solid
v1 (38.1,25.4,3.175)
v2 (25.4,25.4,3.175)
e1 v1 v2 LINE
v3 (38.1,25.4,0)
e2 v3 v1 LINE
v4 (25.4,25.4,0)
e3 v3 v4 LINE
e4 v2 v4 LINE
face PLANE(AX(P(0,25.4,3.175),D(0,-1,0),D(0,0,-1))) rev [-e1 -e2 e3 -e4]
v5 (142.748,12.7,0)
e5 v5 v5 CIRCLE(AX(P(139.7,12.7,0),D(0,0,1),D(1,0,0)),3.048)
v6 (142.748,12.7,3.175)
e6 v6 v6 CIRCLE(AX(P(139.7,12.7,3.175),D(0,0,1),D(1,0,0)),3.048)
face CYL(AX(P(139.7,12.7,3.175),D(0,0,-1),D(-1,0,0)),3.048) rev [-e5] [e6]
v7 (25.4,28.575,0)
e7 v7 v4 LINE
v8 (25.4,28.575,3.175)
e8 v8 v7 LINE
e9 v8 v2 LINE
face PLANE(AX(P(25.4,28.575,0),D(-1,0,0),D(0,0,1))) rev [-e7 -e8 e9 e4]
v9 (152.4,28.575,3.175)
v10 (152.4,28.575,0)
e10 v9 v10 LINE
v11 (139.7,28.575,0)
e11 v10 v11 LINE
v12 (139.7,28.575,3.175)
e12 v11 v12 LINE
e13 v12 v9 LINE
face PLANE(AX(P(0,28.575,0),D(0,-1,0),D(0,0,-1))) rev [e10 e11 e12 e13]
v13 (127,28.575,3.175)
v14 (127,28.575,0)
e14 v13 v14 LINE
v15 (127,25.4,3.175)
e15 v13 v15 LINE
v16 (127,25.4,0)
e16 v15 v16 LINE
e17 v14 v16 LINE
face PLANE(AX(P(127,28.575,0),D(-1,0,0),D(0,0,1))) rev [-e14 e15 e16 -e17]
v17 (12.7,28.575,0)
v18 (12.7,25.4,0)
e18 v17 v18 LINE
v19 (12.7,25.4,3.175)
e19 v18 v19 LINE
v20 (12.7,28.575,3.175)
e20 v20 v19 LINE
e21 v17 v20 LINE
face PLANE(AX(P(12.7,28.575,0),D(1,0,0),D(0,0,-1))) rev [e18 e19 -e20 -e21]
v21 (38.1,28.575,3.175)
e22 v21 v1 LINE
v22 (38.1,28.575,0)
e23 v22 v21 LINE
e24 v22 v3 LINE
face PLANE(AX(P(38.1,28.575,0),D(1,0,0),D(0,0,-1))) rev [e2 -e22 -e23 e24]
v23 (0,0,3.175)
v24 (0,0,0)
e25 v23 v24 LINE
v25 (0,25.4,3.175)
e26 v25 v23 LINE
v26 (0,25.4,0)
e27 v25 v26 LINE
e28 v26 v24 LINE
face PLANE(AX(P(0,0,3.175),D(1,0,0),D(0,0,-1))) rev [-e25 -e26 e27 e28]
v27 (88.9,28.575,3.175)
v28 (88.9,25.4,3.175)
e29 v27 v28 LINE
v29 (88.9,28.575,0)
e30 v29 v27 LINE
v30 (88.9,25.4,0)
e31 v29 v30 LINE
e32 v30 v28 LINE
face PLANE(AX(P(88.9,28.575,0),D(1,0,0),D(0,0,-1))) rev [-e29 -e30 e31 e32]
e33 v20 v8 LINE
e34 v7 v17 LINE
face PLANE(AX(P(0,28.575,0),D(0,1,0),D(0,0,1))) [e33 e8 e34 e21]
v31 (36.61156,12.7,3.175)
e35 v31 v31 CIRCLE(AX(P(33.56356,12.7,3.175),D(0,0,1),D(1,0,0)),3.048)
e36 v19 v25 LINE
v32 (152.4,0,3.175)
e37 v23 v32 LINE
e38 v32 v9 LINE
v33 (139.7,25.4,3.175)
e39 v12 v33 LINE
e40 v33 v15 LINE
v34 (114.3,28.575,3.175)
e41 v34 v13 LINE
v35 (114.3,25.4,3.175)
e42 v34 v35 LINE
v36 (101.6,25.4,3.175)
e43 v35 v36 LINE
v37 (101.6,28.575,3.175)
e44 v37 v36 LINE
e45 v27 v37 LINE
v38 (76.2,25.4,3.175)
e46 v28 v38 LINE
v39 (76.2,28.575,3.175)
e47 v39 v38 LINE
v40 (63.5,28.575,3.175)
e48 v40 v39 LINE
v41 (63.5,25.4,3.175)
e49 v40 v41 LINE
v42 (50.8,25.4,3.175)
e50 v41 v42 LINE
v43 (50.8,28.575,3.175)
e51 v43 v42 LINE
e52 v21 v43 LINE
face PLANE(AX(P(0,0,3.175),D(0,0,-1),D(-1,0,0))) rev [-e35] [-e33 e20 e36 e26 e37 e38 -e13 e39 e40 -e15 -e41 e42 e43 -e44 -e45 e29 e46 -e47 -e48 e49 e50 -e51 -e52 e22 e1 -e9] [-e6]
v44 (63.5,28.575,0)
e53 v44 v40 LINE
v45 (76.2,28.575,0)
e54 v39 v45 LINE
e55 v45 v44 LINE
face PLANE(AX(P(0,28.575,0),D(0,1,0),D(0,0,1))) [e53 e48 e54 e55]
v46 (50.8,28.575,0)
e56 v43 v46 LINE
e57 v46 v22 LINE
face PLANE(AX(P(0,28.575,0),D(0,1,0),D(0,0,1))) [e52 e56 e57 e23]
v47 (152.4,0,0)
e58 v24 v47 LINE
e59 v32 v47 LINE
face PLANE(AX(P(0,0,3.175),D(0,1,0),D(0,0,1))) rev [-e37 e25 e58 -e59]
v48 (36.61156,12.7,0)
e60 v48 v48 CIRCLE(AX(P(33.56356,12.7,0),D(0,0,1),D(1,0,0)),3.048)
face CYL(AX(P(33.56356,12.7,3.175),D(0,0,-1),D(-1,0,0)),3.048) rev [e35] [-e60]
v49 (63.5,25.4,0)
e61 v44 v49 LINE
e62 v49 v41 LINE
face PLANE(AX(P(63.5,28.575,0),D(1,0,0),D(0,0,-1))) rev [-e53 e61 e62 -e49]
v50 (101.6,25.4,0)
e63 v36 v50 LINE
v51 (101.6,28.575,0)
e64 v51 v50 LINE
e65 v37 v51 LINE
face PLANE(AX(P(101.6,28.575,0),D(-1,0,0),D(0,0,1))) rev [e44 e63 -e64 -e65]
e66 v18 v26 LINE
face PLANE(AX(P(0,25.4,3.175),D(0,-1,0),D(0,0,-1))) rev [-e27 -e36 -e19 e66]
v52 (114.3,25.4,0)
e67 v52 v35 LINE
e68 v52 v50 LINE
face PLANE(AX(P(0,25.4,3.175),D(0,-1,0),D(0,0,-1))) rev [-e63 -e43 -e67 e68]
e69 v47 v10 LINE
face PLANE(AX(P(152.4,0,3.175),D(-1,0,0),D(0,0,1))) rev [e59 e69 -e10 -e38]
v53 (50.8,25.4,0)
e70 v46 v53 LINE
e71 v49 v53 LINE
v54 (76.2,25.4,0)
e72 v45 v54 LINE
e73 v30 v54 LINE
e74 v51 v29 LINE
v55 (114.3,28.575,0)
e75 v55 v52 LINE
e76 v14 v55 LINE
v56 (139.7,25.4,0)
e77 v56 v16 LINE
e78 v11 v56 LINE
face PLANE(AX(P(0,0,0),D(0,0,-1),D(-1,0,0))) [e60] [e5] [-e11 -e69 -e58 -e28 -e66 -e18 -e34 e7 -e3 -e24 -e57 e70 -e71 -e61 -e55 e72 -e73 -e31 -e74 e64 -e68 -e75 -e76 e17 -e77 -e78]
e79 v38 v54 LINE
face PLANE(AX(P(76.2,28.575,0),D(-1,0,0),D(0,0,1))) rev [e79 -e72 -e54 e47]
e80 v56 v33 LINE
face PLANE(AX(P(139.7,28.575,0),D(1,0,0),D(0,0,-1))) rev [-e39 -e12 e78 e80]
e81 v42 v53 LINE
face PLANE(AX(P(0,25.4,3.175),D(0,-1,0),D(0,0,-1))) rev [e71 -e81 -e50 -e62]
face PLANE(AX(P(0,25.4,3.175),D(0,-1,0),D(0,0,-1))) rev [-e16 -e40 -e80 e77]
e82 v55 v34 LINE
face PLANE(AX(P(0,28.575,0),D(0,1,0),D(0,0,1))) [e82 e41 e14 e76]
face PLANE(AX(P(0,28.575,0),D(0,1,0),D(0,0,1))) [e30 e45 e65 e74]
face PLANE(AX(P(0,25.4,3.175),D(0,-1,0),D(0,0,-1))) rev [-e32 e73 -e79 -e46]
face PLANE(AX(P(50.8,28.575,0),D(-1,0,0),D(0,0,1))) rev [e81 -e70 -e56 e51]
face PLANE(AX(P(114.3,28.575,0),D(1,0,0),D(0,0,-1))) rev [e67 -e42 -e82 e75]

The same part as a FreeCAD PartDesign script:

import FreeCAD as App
import Part
import Sketcher

V = App.Vector
Q = App.Units.Quantity

doc = App.newDocument("Part")
body = doc.addObject("PartDesign::Body", "Body")

sketch1 = body.newObject("Sketcher::SketchObject", "Sketch")
sketch1.AttachmentSupport = (doc.getObject("XY_Plane"), [""])
sketch1.MapMode = "FlatFace"
sketch1.addGeometry([
    Part.LineSegment(V(0, 25.4, 0), V(0, 0, 0)),
    Part.LineSegment(V(0, 0, 0), V(152.4, 0, 0)),
    Part.LineSegment(V(152.4, 0, 0), V(152.4, 25.4, 0)),
    Part.LineSegment(V(152.4, 25.4, 0), V(0, 25.4, 0)),
    Part.Circle(V(33.6, 12.7, 0), V(0, 0, 1), 3),
    Part.Circle(V(139.7, 12.7, 0), V(0, 0, 1), 3),
], False)
sketch1.addConstraint([
    Sketcher.Constraint("Coincident", 0, 2, 1, 1),
    Sketcher.Constraint("Coincident", 1, 2, 2, 1),
    Sketcher.Constraint("Coincident", 2, 2, 3, 1),
    Sketcher.Constraint("Coincident", 3, 2, 0, 1),
    Sketcher.Constraint("Vertical", 0),
    Sketcher.Constraint("Horizontal", 1),
    Sketcher.Constraint("Vertical", 2),
    Sketcher.Constraint("Horizontal", 3),
    Sketcher.Constraint("Coincident", 0, 2, -1, 1),
    Sketcher.Constraint("Equal", 4, 5),
    Sketcher.Constraint("Horizontal", 4, 3, 5, 3),
    Sketcher.Constraint("Diameter", 4, Q("0.24 in")),
    Sketcher.Constraint("DistanceX", 1, 1, 1, 2, Q("6 in")),
    Sketcher.Constraint("DistanceY", 0, 2, 0, 1, Q("1 in")),
    Sketcher.Constraint("DistanceY", -1, 1, 4, 3, Q("0.5 in")),
    Sketcher.Constraint("DistanceX", -1, 1, 5, 3, Q("5.5 in")),
    Sketcher.Constraint("DistanceX", -1, 1, 4, 3, Q("1.3214 in")),
])
pad1 = body.newObject("PartDesign::Pad", "Pad")
pad1.Profile = sketch1
pad1.Length = Q("0.125 in")

sketch2 = body.newObject("Sketcher::SketchObject", "Sketch001")
sketch2.AttachmentSupport = (doc.getObject("XZ_Plane"), [""])
sketch2.MapMode = "FlatFace"
sketch2.AttachmentOffset = App.Placement(V(0, 0, -1 * 25.4), App.Rotation())
sketch2.addGeometry([
    Part.LineSegment(V(139.7, 0, 0), V(139.7, 3.2, 0)),
    Part.LineSegment(V(139.7, 3.2, 0), V(152.4, 3.2, 0)),
    Part.LineSegment(V(152.4, 3.2, 0), V(152.4, 0, 0)),
    Part.LineSegment(V(152.4, 0, 0), V(139.7, 0, 0)),
    Part.LineSegment(V(114.3, 0, 0), V(114.3, 3.2, 0)),
    Part.LineSegment(V(114.3, 3.2, 0), V(127, 3.2, 0)),
    Part.LineSegment(V(127, 3.2, 0), V(127, 0, 0)),
    Part.LineSegment(V(127, 0, 0), V(114.3, 0, 0)),
    Part.LineSegment(V(88.9, 0, 0), V(88.9, 3.2, 0)),
    Part.LineSegment(V(88.9, 3.2, 0), V(101.6, 3.2, 0)),
    Part.LineSegment(V(101.6, 3.2, 0), V(101.6, 0, 0)),
    Part.LineSegment(V(101.6, 0, 0), V(88.9, 0, 0)),
    Part.LineSegment(V(63.5, 0, 0), V(63.5, 3.2, 0)),
    Part.LineSegment(V(63.5, 3.2, 0), V(76.2, 3.2, 0)),
    Part.LineSegment(V(76.2, 3.2, 0), V(76.2, 0, 0)),
    Part.LineSegment(V(76.2, 0, 0), V(63.5, 0, 0)),
    Part.LineSegment(V(38.1, 0, 0), V(38.1, 3.2, 0)),
    Part.LineSegment(V(38.1, 3.2, 0), V(50.8, 3.2, 0)),
    Part.LineSegment(V(50.8, 3.2, 0), V(50.8, 0, 0)),
    Part.LineSegment(V(50.8, 0, 0), V(38.1, 0, 0)),
    Part.LineSegment(V(12.7, 0, 0), V(12.7, 3.2, 0)),
    Part.LineSegment(V(12.7, 3.2, 0), V(25.4, 3.2, 0)),
    Part.LineSegment(V(25.4, 3.2, 0), V(25.4, 0, 0)),
    Part.LineSegment(V(25.4, 0, 0), V(12.7, 0, 0)),
], False)
sketch2.addConstraint([
    Sketcher.Constraint("Coincident", 0, 2, 1, 1),
    Sketcher.Constraint("Coincident", 1, 2, 2, 1),
    Sketcher.Constraint("Coincident", 2, 2, 3, 1),
    Sketcher.Constraint("Coincident", 3, 2, 0, 1),
    Sketcher.Constraint("Coincident", 4, 2, 5, 1),
    Sketcher.Constraint("Coincident", 5, 2, 6, 1),
    Sketcher.Constraint("Coincident", 6, 2, 7, 1),
    Sketcher.Constraint("Coincident", 7, 2, 4, 1),
    Sketcher.Constraint("Coincident", 8, 2, 9, 1),
    Sketcher.Constraint("Coincident", 9, 2, 10, 1),
    Sketcher.Constraint("Coincident", 10, 2, 11, 1),
    Sketcher.Constraint("Coincident", 11, 2, 8, 1),
    Sketcher.Constraint("Coincident", 12, 2, 13, 1),
    Sketcher.Constraint("Coincident", 13, 2, 14, 1),
    Sketcher.Constraint("Coincident", 14, 2, 15, 1),
    Sketcher.Constraint("Coincident", 15, 2, 12, 1),
    Sketcher.Constraint("Coincident", 16, 2, 17, 1),
    Sketcher.Constraint("Coincident", 17, 2, 18, 1),
    Sketcher.Constraint("Coincident", 18, 2, 19, 1),
    Sketcher.Constraint("Coincident", 19, 2, 16, 1),
    Sketcher.Constraint("Coincident", 20, 2, 21, 1),
    Sketcher.Constraint("Coincident", 21, 2, 22, 1),
    Sketcher.Constraint("Coincident", 22, 2, 23, 1),
    Sketcher.Constraint("Coincident", 23, 2, 20, 1),
    Sketcher.Constraint("Vertical", 0),
    Sketcher.Constraint("Horizontal", 1),
    Sketcher.Constraint("Vertical", 2),
    Sketcher.Constraint("Horizontal", 3),
    Sketcher.Constraint("Vertical", 4),
    Sketcher.Constraint("Horizontal", 5),
    Sketcher.Constraint("Vertical", 6),
    Sketcher.Constraint("Horizontal", 7),
    Sketcher.Constraint("Vertical", 8),
    Sketcher.Constraint("Horizontal", 9),
    Sketcher.Constraint("Vertical", 10),
    Sketcher.Constraint("Horizontal", 11),
    Sketcher.Constraint("Vertical", 12),
    Sketcher.Constraint("Horizontal", 13),
    Sketcher.Constraint("Vertical", 14),
    Sketcher.Constraint("Horizontal", 15),
    Sketcher.Constraint("Vertical", 16),
    Sketcher.Constraint("Horizontal", 17),
    Sketcher.Constraint("Vertical", 18),
    Sketcher.Constraint("Horizontal", 19),
    Sketcher.Constraint("Vertical", 20),
    Sketcher.Constraint("Horizontal", 21),
    Sketcher.Constraint("Vertical", 22),
    Sketcher.Constraint("Horizontal", 23),
    Sketcher.Constraint("PointOnObject", 2, 2, -1),
    Sketcher.Constraint("PointOnObject", 6, 2, -1),
    Sketcher.Constraint("PointOnObject", 10, 2, -1),
    Sketcher.Constraint("PointOnObject", 14, 2, -1),
    Sketcher.Constraint("PointOnObject", 18, 2, -1),
    Sketcher.Constraint("PointOnObject", 22, 2, -1),
    Sketcher.Constraint("Horizontal", 1, 2, 4, 2),
    Sketcher.Constraint("Horizontal", 5, 2, 8, 2),
    Sketcher.Constraint("Horizontal", 9, 2, 12, 2),
    Sketcher.Constraint("Horizontal", 13, 2, 16, 2),
    Sketcher.Constraint("Horizontal", 17, 2, 20, 2),
    Sketcher.Constraint("Equal", 3, 5),
    Sketcher.Constraint("Equal", 7, 9),
    Sketcher.Constraint("Equal", 11, 13),
    Sketcher.Constraint("Equal", 15, 17),
    Sketcher.Constraint("Equal", 19, 21),
    Sketcher.Constraint("DistanceX", 1, 1, 1, 2, Q("0.5 in")),
    Sketcher.Constraint("DistanceX", -1, 1, 1, 2, Q("6 in")),
    Sketcher.Constraint("DistanceX", -1, 1, 5, 2, Q("5 in")),
    Sketcher.Constraint("DistanceX", -1, 1, 9, 2, Q("4 in")),
    Sketcher.Constraint("DistanceX", -1, 1, 13, 2, Q("3 in")),
    Sketcher.Constraint("DistanceX", -1, 1, 17, 2, Q("2 in")),
    Sketcher.Constraint("DistanceX", -1, 1, 21, 2, Q("1 in")),
    Sketcher.Constraint("DistanceY", 0, 1, 0, 2, Q("0.125 in")),
])
pad2 = body.newObject("PartDesign::Pad", "Pad001")
pad2.Profile = sketch2
pad2.Length = Q("0.125 in")
pad2.Reversed = True

doc.recompute()
